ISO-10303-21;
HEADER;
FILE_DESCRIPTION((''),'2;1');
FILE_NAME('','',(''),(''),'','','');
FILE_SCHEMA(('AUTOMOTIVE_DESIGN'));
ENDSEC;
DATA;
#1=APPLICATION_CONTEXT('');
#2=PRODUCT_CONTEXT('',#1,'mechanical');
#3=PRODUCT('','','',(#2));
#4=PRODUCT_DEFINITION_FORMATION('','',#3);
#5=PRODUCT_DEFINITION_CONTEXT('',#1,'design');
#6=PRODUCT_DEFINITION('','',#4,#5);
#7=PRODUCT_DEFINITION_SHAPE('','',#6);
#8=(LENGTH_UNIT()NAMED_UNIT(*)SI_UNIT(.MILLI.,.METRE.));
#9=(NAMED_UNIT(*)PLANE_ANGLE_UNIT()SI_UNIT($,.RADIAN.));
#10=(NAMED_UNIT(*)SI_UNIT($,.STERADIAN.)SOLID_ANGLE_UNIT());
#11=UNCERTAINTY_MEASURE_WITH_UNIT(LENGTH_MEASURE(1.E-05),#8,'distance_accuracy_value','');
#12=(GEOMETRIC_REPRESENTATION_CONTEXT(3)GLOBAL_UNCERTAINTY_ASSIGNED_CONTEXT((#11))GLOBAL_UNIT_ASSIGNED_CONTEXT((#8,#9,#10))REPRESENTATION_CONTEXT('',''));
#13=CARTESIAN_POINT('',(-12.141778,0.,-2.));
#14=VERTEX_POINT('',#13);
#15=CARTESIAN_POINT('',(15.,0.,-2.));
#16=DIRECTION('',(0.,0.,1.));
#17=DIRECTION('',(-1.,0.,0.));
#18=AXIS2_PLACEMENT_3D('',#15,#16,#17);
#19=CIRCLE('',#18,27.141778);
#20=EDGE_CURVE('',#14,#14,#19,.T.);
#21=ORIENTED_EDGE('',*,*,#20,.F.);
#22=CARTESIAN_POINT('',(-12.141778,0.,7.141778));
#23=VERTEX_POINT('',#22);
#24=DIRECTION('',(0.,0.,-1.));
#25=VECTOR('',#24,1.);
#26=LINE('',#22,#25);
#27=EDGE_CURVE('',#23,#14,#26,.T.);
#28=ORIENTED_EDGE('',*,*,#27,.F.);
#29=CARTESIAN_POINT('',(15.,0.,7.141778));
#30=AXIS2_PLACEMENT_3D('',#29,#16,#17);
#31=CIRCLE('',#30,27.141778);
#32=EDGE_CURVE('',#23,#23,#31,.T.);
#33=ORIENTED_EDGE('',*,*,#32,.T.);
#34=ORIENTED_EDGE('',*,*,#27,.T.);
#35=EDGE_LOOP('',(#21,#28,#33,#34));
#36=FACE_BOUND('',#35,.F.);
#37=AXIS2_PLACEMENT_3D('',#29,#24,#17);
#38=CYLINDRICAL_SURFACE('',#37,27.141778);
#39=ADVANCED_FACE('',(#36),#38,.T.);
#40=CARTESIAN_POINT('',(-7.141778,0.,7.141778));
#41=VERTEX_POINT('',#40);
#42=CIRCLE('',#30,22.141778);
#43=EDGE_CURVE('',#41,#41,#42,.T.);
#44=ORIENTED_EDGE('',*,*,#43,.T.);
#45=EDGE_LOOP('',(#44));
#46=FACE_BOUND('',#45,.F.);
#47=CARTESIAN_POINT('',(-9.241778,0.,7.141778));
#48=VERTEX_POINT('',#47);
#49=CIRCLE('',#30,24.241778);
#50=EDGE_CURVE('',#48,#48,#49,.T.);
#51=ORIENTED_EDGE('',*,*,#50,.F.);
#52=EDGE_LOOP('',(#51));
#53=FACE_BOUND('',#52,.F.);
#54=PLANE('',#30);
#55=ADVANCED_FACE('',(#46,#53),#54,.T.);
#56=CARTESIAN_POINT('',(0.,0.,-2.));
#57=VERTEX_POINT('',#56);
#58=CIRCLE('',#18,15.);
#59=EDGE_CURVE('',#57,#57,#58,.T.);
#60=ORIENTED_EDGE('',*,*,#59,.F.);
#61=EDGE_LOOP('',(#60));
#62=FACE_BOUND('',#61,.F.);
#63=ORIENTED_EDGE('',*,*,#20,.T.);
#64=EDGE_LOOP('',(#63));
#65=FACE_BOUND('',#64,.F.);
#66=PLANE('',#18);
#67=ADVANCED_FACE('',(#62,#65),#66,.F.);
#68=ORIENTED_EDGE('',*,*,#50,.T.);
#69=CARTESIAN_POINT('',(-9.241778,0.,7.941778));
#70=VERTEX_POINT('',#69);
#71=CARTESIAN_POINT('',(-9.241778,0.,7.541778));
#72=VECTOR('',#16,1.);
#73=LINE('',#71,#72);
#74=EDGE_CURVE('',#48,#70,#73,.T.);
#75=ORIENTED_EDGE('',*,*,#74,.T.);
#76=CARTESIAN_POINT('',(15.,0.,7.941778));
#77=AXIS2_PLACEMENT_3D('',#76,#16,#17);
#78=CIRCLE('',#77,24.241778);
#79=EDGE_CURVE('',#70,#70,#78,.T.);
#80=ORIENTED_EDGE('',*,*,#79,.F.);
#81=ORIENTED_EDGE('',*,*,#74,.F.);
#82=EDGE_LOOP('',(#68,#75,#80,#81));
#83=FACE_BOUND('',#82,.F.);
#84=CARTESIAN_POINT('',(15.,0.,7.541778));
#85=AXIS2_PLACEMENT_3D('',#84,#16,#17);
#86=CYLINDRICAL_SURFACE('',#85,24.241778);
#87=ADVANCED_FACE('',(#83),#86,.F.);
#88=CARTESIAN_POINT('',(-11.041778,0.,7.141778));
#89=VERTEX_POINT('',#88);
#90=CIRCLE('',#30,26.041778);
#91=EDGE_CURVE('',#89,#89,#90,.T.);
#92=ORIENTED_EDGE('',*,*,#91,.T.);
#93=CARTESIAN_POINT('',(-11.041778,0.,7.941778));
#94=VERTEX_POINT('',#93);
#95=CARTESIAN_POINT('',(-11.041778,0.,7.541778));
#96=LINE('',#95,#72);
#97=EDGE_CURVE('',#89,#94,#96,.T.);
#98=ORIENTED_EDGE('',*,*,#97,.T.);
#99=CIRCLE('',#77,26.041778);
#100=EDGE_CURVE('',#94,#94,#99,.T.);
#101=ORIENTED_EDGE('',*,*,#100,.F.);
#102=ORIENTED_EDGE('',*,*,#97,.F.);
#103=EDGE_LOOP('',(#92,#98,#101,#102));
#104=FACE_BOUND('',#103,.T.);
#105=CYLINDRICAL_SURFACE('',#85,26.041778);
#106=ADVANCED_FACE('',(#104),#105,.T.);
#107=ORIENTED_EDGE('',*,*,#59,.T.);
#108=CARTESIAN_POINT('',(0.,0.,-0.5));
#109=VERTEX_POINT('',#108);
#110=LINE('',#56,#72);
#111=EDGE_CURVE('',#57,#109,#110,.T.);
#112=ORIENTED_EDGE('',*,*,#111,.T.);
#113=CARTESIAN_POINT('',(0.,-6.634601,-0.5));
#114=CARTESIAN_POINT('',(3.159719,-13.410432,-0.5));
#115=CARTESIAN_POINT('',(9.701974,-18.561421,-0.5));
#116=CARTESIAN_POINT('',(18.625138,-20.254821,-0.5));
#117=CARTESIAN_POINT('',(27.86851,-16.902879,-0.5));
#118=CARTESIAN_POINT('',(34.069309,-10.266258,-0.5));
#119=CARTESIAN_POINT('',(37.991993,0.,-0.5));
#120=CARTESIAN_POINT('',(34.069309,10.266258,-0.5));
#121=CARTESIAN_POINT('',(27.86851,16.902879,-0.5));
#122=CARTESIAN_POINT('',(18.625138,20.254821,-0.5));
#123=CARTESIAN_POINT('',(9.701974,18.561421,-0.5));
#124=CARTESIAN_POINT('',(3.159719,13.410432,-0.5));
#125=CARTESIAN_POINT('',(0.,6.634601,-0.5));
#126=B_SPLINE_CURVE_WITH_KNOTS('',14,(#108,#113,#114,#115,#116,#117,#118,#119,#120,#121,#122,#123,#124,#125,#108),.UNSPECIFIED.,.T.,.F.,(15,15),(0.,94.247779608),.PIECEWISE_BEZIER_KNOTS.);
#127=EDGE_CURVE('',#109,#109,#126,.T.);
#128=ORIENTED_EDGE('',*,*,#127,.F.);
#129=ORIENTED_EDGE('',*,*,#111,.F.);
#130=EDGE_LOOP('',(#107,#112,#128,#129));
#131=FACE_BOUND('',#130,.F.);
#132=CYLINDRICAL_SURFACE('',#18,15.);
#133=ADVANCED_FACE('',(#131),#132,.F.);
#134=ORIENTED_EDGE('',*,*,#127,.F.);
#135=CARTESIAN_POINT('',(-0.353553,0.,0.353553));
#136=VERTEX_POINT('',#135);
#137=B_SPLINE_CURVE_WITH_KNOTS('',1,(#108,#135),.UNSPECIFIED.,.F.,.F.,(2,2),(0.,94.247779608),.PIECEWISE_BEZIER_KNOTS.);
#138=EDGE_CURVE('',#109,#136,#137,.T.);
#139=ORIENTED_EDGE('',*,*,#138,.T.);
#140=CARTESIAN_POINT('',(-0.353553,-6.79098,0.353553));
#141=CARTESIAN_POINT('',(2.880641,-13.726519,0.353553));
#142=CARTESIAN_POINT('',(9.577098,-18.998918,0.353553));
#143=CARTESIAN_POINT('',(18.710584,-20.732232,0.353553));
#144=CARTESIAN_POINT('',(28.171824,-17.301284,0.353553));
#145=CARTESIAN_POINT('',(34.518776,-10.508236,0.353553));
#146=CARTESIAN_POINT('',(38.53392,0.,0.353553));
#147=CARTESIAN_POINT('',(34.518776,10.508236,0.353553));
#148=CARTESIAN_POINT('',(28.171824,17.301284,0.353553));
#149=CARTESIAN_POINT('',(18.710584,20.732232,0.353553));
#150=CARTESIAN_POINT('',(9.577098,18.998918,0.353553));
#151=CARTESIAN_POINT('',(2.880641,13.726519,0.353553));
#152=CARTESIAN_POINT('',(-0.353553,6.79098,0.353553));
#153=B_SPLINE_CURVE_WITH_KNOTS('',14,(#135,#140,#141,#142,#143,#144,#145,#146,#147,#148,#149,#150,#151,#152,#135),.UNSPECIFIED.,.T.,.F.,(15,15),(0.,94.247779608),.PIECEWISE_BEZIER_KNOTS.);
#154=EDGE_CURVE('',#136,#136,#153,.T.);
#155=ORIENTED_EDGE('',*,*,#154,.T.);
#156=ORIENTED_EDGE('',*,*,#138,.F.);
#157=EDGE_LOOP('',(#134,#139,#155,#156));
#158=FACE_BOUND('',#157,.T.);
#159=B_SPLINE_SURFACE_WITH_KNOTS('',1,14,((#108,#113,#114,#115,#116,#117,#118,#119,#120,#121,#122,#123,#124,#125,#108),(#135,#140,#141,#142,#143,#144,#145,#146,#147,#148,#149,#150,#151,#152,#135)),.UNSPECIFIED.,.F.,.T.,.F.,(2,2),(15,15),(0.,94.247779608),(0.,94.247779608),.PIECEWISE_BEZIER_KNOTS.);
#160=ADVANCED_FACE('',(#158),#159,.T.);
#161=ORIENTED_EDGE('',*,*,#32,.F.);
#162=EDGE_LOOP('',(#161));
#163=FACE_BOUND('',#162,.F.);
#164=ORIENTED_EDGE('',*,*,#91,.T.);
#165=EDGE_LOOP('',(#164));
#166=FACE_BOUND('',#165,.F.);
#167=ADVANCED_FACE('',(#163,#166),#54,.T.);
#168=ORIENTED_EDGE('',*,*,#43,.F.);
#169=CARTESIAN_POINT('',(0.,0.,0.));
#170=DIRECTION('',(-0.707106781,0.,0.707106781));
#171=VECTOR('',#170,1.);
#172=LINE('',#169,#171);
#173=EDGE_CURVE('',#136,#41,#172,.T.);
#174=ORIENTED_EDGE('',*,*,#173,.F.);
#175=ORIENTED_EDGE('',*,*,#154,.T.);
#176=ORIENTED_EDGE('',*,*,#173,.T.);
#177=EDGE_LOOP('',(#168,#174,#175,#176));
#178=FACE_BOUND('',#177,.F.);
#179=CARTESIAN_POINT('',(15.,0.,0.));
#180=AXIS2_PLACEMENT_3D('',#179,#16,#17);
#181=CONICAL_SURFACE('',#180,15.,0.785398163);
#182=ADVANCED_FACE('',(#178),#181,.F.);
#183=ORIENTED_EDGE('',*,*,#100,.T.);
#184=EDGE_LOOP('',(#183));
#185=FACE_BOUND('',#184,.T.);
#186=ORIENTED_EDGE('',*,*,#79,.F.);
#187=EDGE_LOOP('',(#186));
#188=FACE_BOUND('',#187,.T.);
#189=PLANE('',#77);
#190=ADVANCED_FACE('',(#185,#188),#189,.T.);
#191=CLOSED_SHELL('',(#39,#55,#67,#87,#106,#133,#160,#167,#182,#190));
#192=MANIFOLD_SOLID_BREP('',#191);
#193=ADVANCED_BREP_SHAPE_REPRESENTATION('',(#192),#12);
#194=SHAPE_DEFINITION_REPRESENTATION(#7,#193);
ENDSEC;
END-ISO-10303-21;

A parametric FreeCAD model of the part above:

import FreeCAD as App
import Part
import Sketcher
Q = App.Units.Quantity


def edges_at(feature, points):
    """Names of the edges that pass closest to the given points."""
    edges = feature.Shape.Edges
    near = lambda p: min(range(len(edges)), key=lambda i: edges[i].distToShape(Part.Vertex(*p))[0])
    return sorted({f"Edge{near(p) + 1}" for p in points})


def add_polygon(sketch, points):
    """Adds a closed chain of lines whose ends are joined by coincident constraints."""
    first, n = sketch.GeometryCount, len(points)
    for a, b in zip(points, points[1:] + points[:1]):
        sketch.addGeometry(Part.LineSegment(App.Vector(*a, 0), App.Vector(*b, 0)), False)
    for i in range(n):
        sketch.addConstraint(Sketcher.Constraint("Coincident", first + i, 2, first + (i + 1) % n, 1))

doc = App.newDocument("Part")
body = doc.addObject("PartDesign::Body", "Body")

sketch1 = body.newObject("Sketcher::SketchObject", "Sketch")
sketch1.AttachmentSupport = (doc.getObject("XZ_Plane"), [""])
sketch1.MapMode = "FlatFace"
add_polygon(sketch1, [(-11.041778, 7.941778), (-11.041778, 7.141778), (-12.141778, 7.141778), (-12.141778, -2), (0, -2), (0, 0), (-7.141778, 7.141778), (-9.241778, 7.141778), (-9.241778, 7.941778)])
sketch1.addGeometry(Part.LineSegment(App.Vector(15, -2, 0), App.Vector(15, 7.941778, 0)), True)
sketch1.addConstraint(Sketcher.Constraint("Vertical", 0))
sketch1.addConstraint(Sketcher.Constraint("Horizontal", 1))
sketch1.addConstraint(Sketcher.Constraint("Vertical", 2))
sketch1.addConstraint(Sketcher.Constraint("Horizontal", 3))
sketch1.addConstraint(Sketcher.Constraint("Vertical", 4))
sketch1.addConstraint(Sketcher.Constraint("Horizontal", 6))
sketch1.addConstraint(Sketcher.Constraint("Vertical", 7))
sketch1.addConstraint(Sketcher.Constraint("Horizontal", 8))
sketch1.addConstraint(Sketcher.Constraint("Vertical", 9))
sketch1.addConstraint(Sketcher.Constraint("Coincident", 4, 2, -1, 1))
sketch1.addConstraint(Sketcher.Constraint("Horizontal", 1, 2, 5, 2))
sketch1.addConstraint(Sketcher.Constraint("Horizontal", 3, 2, 9, 1))
sketch1.addConstraint(Sketcher.Constraint("Horizontal", 8, 2, 9, 2))
sketch1.addConstraint(Sketcher.Constraint("DistanceY", 4, 1, 4, 2, 2.0))
sketch1.addConstraint(Sketcher.Constraint("Angle", 5, Q("135 deg")))
sketch1.addConstraint(Sketcher.Constraint("DistanceX", 1, 2, 1, 1, 1.1))
sketch1.addConstraint(Sketcher.Constraint("DistanceX", 6, 2, 6, 1, 2.1))
sketch1.addConstraint(Sketcher.Constraint("DistanceX", 8, 2, 8, 1, 1.8))
sketch1.addConstraint(Sketcher.Constraint("DistanceY", 0, 2, 0, 1, 0.8))
sketch1.addConstraint(Sketcher.Constraint("DistanceX", -1, 1, 9, 1, 15.0))
sketch1.addConstraint(Sketcher.Constraint("Distance", 5, 10.099999))
revolution = body.newObject("PartDesign::Revolution", "Revolution")
revolution.Profile = sketch1
revolution.ReferenceAxis = (sketch1, ["Axis0"])
revolution.Angle = 360
doc.recompute()

chamfer = body.newObject("PartDesign::Chamfer", "Chamfer")
chamfer.Base = (revolution, edges_at(revolution, [(30, 0, 0)]))
chamfer.Size = 0.5

doc.recompute()
